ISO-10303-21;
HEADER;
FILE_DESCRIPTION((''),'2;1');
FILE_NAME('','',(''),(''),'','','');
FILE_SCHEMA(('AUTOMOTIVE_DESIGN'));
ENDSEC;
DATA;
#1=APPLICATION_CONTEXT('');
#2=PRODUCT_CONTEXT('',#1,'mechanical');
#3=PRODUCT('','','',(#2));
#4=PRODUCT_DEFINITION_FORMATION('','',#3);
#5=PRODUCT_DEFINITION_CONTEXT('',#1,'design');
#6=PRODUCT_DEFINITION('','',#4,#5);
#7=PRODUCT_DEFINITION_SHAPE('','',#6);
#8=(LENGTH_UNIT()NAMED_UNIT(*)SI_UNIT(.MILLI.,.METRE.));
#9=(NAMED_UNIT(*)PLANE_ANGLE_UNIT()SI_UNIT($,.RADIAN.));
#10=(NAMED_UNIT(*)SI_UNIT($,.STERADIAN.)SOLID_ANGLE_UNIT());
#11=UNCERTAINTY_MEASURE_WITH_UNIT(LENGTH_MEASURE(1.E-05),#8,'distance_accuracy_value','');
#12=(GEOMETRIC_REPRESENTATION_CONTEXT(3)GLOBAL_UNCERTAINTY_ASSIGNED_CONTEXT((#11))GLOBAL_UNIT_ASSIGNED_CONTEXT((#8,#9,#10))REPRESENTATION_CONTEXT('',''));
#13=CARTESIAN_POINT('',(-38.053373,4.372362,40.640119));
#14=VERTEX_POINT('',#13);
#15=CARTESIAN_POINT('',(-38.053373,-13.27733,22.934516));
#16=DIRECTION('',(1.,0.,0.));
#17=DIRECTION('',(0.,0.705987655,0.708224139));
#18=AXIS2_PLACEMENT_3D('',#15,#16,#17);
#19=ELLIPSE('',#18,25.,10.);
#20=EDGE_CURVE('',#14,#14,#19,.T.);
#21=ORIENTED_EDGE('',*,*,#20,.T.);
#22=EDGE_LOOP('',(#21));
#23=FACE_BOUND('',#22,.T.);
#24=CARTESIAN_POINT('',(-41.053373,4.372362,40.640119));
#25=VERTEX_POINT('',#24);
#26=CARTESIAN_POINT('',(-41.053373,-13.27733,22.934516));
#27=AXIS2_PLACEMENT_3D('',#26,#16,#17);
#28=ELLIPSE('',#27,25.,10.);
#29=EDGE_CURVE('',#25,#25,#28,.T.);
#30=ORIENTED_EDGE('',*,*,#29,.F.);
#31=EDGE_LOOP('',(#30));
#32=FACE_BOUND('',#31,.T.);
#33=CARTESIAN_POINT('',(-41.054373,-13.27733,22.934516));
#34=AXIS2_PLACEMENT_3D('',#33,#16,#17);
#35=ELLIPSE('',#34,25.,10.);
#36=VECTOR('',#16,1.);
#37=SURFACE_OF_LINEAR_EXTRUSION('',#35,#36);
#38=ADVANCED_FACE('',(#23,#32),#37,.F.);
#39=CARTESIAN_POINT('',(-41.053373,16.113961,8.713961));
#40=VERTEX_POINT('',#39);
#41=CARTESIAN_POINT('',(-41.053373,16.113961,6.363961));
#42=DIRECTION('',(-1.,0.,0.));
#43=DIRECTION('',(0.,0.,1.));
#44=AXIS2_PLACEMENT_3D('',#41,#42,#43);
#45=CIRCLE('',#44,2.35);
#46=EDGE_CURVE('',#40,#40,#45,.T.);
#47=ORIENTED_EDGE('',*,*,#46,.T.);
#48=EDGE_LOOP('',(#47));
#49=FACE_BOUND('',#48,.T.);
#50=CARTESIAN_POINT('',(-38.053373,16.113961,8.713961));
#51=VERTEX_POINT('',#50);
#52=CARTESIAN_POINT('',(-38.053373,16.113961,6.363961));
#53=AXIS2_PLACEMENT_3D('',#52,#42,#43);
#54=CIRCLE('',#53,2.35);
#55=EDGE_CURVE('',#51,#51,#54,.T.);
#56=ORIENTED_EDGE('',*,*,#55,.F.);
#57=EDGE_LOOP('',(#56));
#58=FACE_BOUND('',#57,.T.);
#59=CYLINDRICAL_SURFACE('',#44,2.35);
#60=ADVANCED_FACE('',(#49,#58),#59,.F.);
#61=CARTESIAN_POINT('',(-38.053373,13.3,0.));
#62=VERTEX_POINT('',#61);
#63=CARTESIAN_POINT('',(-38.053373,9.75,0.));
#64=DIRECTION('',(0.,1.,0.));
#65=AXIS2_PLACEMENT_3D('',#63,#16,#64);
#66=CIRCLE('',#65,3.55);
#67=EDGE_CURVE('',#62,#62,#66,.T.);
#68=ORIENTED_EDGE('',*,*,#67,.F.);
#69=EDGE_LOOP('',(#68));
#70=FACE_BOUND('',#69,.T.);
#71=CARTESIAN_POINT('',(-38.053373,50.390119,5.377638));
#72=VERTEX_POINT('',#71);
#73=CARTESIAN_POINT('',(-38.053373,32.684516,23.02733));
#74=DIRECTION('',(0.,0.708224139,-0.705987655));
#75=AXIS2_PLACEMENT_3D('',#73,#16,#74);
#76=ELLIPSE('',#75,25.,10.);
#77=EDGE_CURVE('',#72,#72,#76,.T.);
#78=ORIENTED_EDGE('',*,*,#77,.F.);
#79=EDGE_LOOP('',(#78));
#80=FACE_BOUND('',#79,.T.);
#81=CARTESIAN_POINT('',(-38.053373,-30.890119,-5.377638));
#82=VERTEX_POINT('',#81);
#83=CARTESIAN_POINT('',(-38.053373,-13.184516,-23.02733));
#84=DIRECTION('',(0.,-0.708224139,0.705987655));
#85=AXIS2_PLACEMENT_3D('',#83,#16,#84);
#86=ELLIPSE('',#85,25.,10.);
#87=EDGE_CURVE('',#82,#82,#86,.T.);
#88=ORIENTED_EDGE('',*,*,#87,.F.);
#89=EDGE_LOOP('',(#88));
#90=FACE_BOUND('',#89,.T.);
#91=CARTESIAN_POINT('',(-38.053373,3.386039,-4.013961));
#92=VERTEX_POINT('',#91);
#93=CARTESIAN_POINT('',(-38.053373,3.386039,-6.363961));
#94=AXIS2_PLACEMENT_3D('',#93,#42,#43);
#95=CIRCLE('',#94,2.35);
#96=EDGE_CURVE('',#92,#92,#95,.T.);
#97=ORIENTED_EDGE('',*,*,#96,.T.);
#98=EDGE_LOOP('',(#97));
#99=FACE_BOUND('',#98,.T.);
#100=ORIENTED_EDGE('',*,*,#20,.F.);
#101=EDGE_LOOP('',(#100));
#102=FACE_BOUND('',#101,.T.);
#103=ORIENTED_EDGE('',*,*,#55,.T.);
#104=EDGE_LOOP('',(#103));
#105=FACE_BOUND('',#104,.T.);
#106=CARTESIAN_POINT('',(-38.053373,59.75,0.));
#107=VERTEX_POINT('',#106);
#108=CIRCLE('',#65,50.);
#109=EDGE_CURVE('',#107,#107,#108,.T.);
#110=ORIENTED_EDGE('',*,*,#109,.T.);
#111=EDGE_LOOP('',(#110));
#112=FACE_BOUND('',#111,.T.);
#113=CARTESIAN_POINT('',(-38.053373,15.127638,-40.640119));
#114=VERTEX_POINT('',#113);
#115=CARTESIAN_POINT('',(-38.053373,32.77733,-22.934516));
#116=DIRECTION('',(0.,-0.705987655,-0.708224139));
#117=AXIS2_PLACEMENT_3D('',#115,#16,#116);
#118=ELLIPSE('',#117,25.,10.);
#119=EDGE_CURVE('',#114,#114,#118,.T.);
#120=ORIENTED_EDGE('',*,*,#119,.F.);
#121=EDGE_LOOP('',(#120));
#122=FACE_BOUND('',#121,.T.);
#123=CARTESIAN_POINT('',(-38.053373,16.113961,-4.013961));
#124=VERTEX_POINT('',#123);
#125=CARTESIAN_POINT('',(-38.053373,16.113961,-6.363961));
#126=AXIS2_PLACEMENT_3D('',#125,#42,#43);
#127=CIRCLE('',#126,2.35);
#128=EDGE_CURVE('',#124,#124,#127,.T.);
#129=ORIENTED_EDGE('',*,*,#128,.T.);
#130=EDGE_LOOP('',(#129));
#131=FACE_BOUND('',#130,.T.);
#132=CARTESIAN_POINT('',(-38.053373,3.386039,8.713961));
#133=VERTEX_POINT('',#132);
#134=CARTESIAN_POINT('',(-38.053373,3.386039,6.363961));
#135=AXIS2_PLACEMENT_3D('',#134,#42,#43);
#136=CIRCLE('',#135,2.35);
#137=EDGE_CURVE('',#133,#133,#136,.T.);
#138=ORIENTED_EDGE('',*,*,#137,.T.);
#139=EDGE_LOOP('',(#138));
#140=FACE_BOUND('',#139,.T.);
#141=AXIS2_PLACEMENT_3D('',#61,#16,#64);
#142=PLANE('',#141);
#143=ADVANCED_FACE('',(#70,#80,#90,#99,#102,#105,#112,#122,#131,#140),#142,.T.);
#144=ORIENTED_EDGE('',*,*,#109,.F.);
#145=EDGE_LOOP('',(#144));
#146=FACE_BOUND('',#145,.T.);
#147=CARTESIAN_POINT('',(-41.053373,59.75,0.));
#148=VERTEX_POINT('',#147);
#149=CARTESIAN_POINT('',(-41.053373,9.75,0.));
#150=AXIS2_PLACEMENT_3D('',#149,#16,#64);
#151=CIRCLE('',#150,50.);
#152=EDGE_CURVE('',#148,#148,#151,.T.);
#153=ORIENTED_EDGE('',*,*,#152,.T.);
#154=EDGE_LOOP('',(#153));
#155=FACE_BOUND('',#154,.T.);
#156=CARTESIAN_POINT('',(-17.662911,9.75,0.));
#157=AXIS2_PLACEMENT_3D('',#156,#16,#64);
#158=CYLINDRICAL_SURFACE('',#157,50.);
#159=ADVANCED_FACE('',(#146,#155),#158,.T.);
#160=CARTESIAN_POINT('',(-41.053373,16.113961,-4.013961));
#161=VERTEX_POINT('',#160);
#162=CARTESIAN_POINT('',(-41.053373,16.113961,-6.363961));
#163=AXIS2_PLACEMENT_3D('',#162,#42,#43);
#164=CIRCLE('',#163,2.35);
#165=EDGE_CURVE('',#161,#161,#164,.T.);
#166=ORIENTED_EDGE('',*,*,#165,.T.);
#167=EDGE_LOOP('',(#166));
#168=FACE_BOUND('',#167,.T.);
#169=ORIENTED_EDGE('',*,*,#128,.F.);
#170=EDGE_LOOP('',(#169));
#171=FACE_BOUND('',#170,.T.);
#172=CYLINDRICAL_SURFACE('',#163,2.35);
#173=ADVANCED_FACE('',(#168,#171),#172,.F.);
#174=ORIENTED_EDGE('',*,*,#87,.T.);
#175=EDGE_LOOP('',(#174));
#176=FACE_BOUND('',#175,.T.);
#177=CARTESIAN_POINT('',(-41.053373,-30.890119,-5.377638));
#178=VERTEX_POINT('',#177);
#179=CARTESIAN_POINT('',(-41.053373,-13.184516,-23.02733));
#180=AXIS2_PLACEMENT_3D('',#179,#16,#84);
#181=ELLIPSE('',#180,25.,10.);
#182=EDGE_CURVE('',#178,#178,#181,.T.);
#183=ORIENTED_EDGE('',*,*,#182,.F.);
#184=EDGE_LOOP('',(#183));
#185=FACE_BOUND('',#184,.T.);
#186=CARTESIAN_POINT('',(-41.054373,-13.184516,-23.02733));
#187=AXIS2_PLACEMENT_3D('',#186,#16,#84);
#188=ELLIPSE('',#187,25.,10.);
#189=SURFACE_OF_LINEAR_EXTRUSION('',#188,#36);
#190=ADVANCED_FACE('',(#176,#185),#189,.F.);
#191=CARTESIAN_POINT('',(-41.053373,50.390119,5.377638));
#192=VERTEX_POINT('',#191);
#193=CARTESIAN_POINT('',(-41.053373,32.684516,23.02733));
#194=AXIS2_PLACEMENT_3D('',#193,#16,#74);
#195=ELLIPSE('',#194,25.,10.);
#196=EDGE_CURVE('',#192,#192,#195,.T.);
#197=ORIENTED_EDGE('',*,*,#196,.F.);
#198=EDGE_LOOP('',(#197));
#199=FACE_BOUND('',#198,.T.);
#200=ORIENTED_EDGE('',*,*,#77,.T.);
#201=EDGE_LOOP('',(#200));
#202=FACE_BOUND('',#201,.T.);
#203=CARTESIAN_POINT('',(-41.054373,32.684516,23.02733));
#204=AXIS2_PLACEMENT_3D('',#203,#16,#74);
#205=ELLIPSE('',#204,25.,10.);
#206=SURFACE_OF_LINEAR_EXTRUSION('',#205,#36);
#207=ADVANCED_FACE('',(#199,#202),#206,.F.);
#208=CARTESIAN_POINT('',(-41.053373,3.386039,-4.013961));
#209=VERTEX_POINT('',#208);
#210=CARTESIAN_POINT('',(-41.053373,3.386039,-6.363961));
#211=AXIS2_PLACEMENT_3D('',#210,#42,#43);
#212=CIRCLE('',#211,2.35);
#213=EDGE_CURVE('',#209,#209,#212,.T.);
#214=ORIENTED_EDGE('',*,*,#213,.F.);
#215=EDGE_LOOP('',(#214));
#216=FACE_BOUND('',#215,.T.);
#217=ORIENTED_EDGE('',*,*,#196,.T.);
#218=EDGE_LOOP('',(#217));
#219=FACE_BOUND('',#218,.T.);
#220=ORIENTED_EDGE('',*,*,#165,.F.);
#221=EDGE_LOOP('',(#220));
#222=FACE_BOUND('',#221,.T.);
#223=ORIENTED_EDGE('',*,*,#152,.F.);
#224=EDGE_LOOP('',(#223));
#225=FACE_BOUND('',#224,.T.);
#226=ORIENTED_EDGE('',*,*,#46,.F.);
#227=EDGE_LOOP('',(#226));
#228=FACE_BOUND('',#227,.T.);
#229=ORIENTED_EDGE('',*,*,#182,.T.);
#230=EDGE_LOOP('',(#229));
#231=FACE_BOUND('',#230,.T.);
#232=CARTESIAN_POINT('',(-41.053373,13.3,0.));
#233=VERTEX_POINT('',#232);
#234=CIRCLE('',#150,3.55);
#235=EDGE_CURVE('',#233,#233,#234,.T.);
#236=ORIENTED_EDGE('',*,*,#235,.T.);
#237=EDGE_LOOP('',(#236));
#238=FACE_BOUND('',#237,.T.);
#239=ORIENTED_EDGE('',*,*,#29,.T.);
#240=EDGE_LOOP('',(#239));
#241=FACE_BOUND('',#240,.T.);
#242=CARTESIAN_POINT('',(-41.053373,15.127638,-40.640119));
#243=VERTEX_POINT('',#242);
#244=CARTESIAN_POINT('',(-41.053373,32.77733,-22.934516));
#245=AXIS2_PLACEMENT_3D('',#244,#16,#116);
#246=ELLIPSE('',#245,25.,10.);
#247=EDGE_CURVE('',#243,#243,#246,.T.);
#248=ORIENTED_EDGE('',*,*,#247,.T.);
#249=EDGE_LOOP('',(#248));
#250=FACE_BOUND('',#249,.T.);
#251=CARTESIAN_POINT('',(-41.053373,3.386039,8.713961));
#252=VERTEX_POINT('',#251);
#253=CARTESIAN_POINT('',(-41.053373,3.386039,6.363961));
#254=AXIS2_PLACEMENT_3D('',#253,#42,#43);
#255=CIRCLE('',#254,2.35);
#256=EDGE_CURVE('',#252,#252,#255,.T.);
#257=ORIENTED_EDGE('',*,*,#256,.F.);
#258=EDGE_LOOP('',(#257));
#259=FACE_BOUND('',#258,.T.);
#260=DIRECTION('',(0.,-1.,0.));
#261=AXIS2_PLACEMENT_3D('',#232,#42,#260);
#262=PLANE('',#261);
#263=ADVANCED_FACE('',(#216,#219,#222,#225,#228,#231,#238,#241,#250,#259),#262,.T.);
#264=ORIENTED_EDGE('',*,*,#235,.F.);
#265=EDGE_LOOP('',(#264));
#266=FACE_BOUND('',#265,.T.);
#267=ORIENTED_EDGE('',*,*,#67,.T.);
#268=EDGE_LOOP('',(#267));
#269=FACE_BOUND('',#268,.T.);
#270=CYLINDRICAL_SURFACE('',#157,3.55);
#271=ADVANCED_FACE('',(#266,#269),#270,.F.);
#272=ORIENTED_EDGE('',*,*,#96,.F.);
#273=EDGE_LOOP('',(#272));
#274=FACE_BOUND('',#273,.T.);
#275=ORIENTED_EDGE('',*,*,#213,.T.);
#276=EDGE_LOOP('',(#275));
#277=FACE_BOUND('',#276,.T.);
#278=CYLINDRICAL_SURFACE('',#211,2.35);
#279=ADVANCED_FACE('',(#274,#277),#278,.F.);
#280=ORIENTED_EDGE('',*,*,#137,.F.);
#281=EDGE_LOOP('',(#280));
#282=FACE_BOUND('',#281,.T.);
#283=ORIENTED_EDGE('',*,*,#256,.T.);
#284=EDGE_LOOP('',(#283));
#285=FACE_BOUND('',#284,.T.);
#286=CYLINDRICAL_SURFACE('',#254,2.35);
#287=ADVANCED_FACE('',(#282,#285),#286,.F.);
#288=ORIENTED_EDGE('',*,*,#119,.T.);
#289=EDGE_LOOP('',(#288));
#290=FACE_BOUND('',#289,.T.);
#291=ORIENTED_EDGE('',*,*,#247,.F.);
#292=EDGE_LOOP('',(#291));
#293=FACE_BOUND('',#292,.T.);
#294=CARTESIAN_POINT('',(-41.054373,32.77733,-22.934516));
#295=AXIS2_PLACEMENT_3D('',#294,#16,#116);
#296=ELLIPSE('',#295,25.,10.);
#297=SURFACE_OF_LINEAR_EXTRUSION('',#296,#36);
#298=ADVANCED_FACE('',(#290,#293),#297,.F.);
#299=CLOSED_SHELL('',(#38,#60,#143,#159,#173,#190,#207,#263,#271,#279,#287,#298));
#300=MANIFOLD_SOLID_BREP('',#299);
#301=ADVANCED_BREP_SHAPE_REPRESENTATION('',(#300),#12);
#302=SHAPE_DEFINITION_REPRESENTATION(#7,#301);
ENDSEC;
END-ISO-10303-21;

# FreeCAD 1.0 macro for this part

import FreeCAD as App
import Part
import Sketcher
Q = App.Units.Quantity


def add_polygon(sketch, points):
    """Adds a closed chain of lines whose ends are joined by coincident constraints."""
    first, n = sketch.GeometryCount, len(points)
    for a, b in zip(points, points[1:] + points[:1]):
        sketch.addGeometry(Part.LineSegment(App.Vector(*a, 0), App.Vector(*b, 0)), False)
    for i in range(n):
        sketch.addConstraint(Sketcher.Constraint("Coincident", first + i, 2, first + (i + 1) % n, 1))

doc = App.newDocument("Part")
params = doc.addObject("Spreadsheet::Sheet", "Params")
for row, (alias, value) in enumerate([
    ("sketch1_width", "3 mm"),
    ("sketch1_height", "46.45 mm"),
    ("revolution_angle", "360 deg"),
    ("sketch2_diameter", "4.7 mm"),
    ("hole_diameter", "4.7 mm"),
    ("pocket1_length", "3 mm"),
], start=1):
    params.set(f"A{row}", alias)
    params.set(f"B{row}", "=" + value)
    params.setAlias(f"B{row}", alias)

body = doc.addObject("PartDesign::Body", "Body")

sketch1 = body.newObject("Sketcher::SketchObject", "Sketch")
sketch1.AttachmentSupport = (doc.getObject("XY_Plane"), [""])
sketch1.MapMode = "FlatFace"
add_polygon(sketch1, [(-41.1, 59.8), (-41.1, 13.3), (-38.1, 13.3), (-38.1, 59.8)])
sketch1.addGeometry(Part.LineSegment(App.Vector(-38.1, 9.8, 0), App.Vector(-41.1, 9.8, 0)), True)
sketch1.addConstraint([
    Sketcher.Constraint("Vertical", 0),
    Sketcher.Constraint("Horizontal", 1),
    Sketcher.Constraint("Vertical", 2),
    Sketcher.Constraint("Horizontal", 3),
    Sketcher.Constraint("Horizontal", 4),
    Sketcher.Constraint("Vertical", 2, 2, 4, 1),
    Sketcher.Constraint("Vertical", 3, 2, 4, 2),
    Sketcher.Constraint("DistanceX", 1, 1, 1, 2, Q("3 mm")),
    Sketcher.Constraint("DistanceY", 4, 1, 2, 2, Q("50 mm")),
    Sketcher.Constraint("DistanceY", 0, 2, 0, 1, Q("46.45 mm")),
    Sketcher.Constraint("DistanceY", -1, 1, 0, 2, Q("13.3 mm")),
    Sketcher.Constraint("DistanceX", 0, 2, -1, 1, Q("41.053373 mm")),
])
sketch1.setExpression("Constraints[11]", "Params.sketch1_width")
sketch1.setExpression("Constraints[13]", "Params.sketch1_height")
revolution = body.newObject("PartDesign::Revolution", "Revolution")
revolution.Profile = sketch1
revolution.ReferenceAxis = (sketch1, ["Axis0"])
revolution.setExpression("Angle", "Params.revolution_angle")

sketch2 = body.newObject("Sketcher::SketchObject", "Sketch001")
sketch2.AttachmentSupport = (doc.getObject("YZ_Plane"), [""])
sketch2.MapMode = "FlatFace"
sketch2.AttachmentOffset = App.Placement(App.Vector(0, 0, -41.053373), App.Rotation())
sketch2.addGeometry([
    Part.Circle(App.Vector(3.4, 6.4, 0), App.Vector(0, 0, 1), 2.4),
    Part.Circle(App.Vector(3.4, -6.4, 0), App.Vector(0, 0, 1), 2.4),
    Part.Circle(App.Vector(16.1, -6.4, 0), App.Vector(0, 0, 1), 2.4),
    Part.Circle(App.Vector(16.1, 6.4, 0), App.Vector(0, 0, 1), 2.4),
], False)
sketch2.addConstraint([
    Sketcher.Constraint("Equal", 0, 1),
    Sketcher.Constraint("Equal", 1, 2),
    Sketcher.Constraint("Equal", 2, 3),
    Sketcher.Constraint("Symmetric", 0, 3, 1, 3, -1),
    Sketcher.Constraint("Symmetric", 2, 3, 3, 3, -1),
    Sketcher.Constraint("Horizontal", 1, 3, 2, 3),
    Sketcher.Constraint("Diameter", 0, Q("4.7 mm")),
    Sketcher.Constraint("DistanceX", -1, 1, 0, 3, Q("3.386039 mm")),
    Sketcher.Constraint("DistanceY", -1, 1, 0, 3, Q("6.363961 mm")),
    Sketcher.Constraint("DistanceX", -1, 1, 2, 3, Q("16.113961 mm")),
])
sketch2.setExpression("Constraints[6]", "Params.sketch2_diameter")
doc.recompute()
hole = body.newObject("PartDesign::Hole", "Hole")
hole.Profile = sketch2
hole.ThreadType = "None"
hole.setExpression("Diameter", "Params.hole_diameter")
hole.DepthType = "ThroughAll"
hole.Reversed = True

sketch3 = body.newObject("Sketcher::SketchObject", "Sketch002")
sketch3.AttachmentSupport = (doc.getObject("YZ_Plane"), [""])
sketch3.MapMode = "FlatFace"
sketch3.AttachmentOffset = App.Placement(App.Vector(0, 0, -38.053373), App.Rotation())
sketch3.addGeometry(Part.Ellipse(App.Vector(50.390119, 5.377638, 0), App.Vector(39.744392, 30.109571, 0), App.Vector(32.684516, 23.02733, 0)), False)
sketch3.addConstraint(Sketcher.Constraint("Block", 0))
pocket1 = body.newObject("PartDesign::Pocket", "Pocket")
pocket1.Profile = sketch3
pocket1.setExpression("Length", "Params.pocket1_length")
doc.recompute()

datumline = body.newObject("PartDesign::Line", "DatumLine")
datumline.Placement = App.Placement(App.Vector(0, 9.75, 0), App.Rotation(App.Vector(0, 0, 1), App.Vector(-1, 0, 0)))
polarpattern = body.newObject("PartDesign::PolarPattern", "PolarPattern")
polarpattern.Originals = [pocket1]
polarpattern.Axis = (datumline, [""])
polarpattern.Angle = 360
polarpattern.Occurrences = 4
body.Tip = polarpattern

doc.recompute()
